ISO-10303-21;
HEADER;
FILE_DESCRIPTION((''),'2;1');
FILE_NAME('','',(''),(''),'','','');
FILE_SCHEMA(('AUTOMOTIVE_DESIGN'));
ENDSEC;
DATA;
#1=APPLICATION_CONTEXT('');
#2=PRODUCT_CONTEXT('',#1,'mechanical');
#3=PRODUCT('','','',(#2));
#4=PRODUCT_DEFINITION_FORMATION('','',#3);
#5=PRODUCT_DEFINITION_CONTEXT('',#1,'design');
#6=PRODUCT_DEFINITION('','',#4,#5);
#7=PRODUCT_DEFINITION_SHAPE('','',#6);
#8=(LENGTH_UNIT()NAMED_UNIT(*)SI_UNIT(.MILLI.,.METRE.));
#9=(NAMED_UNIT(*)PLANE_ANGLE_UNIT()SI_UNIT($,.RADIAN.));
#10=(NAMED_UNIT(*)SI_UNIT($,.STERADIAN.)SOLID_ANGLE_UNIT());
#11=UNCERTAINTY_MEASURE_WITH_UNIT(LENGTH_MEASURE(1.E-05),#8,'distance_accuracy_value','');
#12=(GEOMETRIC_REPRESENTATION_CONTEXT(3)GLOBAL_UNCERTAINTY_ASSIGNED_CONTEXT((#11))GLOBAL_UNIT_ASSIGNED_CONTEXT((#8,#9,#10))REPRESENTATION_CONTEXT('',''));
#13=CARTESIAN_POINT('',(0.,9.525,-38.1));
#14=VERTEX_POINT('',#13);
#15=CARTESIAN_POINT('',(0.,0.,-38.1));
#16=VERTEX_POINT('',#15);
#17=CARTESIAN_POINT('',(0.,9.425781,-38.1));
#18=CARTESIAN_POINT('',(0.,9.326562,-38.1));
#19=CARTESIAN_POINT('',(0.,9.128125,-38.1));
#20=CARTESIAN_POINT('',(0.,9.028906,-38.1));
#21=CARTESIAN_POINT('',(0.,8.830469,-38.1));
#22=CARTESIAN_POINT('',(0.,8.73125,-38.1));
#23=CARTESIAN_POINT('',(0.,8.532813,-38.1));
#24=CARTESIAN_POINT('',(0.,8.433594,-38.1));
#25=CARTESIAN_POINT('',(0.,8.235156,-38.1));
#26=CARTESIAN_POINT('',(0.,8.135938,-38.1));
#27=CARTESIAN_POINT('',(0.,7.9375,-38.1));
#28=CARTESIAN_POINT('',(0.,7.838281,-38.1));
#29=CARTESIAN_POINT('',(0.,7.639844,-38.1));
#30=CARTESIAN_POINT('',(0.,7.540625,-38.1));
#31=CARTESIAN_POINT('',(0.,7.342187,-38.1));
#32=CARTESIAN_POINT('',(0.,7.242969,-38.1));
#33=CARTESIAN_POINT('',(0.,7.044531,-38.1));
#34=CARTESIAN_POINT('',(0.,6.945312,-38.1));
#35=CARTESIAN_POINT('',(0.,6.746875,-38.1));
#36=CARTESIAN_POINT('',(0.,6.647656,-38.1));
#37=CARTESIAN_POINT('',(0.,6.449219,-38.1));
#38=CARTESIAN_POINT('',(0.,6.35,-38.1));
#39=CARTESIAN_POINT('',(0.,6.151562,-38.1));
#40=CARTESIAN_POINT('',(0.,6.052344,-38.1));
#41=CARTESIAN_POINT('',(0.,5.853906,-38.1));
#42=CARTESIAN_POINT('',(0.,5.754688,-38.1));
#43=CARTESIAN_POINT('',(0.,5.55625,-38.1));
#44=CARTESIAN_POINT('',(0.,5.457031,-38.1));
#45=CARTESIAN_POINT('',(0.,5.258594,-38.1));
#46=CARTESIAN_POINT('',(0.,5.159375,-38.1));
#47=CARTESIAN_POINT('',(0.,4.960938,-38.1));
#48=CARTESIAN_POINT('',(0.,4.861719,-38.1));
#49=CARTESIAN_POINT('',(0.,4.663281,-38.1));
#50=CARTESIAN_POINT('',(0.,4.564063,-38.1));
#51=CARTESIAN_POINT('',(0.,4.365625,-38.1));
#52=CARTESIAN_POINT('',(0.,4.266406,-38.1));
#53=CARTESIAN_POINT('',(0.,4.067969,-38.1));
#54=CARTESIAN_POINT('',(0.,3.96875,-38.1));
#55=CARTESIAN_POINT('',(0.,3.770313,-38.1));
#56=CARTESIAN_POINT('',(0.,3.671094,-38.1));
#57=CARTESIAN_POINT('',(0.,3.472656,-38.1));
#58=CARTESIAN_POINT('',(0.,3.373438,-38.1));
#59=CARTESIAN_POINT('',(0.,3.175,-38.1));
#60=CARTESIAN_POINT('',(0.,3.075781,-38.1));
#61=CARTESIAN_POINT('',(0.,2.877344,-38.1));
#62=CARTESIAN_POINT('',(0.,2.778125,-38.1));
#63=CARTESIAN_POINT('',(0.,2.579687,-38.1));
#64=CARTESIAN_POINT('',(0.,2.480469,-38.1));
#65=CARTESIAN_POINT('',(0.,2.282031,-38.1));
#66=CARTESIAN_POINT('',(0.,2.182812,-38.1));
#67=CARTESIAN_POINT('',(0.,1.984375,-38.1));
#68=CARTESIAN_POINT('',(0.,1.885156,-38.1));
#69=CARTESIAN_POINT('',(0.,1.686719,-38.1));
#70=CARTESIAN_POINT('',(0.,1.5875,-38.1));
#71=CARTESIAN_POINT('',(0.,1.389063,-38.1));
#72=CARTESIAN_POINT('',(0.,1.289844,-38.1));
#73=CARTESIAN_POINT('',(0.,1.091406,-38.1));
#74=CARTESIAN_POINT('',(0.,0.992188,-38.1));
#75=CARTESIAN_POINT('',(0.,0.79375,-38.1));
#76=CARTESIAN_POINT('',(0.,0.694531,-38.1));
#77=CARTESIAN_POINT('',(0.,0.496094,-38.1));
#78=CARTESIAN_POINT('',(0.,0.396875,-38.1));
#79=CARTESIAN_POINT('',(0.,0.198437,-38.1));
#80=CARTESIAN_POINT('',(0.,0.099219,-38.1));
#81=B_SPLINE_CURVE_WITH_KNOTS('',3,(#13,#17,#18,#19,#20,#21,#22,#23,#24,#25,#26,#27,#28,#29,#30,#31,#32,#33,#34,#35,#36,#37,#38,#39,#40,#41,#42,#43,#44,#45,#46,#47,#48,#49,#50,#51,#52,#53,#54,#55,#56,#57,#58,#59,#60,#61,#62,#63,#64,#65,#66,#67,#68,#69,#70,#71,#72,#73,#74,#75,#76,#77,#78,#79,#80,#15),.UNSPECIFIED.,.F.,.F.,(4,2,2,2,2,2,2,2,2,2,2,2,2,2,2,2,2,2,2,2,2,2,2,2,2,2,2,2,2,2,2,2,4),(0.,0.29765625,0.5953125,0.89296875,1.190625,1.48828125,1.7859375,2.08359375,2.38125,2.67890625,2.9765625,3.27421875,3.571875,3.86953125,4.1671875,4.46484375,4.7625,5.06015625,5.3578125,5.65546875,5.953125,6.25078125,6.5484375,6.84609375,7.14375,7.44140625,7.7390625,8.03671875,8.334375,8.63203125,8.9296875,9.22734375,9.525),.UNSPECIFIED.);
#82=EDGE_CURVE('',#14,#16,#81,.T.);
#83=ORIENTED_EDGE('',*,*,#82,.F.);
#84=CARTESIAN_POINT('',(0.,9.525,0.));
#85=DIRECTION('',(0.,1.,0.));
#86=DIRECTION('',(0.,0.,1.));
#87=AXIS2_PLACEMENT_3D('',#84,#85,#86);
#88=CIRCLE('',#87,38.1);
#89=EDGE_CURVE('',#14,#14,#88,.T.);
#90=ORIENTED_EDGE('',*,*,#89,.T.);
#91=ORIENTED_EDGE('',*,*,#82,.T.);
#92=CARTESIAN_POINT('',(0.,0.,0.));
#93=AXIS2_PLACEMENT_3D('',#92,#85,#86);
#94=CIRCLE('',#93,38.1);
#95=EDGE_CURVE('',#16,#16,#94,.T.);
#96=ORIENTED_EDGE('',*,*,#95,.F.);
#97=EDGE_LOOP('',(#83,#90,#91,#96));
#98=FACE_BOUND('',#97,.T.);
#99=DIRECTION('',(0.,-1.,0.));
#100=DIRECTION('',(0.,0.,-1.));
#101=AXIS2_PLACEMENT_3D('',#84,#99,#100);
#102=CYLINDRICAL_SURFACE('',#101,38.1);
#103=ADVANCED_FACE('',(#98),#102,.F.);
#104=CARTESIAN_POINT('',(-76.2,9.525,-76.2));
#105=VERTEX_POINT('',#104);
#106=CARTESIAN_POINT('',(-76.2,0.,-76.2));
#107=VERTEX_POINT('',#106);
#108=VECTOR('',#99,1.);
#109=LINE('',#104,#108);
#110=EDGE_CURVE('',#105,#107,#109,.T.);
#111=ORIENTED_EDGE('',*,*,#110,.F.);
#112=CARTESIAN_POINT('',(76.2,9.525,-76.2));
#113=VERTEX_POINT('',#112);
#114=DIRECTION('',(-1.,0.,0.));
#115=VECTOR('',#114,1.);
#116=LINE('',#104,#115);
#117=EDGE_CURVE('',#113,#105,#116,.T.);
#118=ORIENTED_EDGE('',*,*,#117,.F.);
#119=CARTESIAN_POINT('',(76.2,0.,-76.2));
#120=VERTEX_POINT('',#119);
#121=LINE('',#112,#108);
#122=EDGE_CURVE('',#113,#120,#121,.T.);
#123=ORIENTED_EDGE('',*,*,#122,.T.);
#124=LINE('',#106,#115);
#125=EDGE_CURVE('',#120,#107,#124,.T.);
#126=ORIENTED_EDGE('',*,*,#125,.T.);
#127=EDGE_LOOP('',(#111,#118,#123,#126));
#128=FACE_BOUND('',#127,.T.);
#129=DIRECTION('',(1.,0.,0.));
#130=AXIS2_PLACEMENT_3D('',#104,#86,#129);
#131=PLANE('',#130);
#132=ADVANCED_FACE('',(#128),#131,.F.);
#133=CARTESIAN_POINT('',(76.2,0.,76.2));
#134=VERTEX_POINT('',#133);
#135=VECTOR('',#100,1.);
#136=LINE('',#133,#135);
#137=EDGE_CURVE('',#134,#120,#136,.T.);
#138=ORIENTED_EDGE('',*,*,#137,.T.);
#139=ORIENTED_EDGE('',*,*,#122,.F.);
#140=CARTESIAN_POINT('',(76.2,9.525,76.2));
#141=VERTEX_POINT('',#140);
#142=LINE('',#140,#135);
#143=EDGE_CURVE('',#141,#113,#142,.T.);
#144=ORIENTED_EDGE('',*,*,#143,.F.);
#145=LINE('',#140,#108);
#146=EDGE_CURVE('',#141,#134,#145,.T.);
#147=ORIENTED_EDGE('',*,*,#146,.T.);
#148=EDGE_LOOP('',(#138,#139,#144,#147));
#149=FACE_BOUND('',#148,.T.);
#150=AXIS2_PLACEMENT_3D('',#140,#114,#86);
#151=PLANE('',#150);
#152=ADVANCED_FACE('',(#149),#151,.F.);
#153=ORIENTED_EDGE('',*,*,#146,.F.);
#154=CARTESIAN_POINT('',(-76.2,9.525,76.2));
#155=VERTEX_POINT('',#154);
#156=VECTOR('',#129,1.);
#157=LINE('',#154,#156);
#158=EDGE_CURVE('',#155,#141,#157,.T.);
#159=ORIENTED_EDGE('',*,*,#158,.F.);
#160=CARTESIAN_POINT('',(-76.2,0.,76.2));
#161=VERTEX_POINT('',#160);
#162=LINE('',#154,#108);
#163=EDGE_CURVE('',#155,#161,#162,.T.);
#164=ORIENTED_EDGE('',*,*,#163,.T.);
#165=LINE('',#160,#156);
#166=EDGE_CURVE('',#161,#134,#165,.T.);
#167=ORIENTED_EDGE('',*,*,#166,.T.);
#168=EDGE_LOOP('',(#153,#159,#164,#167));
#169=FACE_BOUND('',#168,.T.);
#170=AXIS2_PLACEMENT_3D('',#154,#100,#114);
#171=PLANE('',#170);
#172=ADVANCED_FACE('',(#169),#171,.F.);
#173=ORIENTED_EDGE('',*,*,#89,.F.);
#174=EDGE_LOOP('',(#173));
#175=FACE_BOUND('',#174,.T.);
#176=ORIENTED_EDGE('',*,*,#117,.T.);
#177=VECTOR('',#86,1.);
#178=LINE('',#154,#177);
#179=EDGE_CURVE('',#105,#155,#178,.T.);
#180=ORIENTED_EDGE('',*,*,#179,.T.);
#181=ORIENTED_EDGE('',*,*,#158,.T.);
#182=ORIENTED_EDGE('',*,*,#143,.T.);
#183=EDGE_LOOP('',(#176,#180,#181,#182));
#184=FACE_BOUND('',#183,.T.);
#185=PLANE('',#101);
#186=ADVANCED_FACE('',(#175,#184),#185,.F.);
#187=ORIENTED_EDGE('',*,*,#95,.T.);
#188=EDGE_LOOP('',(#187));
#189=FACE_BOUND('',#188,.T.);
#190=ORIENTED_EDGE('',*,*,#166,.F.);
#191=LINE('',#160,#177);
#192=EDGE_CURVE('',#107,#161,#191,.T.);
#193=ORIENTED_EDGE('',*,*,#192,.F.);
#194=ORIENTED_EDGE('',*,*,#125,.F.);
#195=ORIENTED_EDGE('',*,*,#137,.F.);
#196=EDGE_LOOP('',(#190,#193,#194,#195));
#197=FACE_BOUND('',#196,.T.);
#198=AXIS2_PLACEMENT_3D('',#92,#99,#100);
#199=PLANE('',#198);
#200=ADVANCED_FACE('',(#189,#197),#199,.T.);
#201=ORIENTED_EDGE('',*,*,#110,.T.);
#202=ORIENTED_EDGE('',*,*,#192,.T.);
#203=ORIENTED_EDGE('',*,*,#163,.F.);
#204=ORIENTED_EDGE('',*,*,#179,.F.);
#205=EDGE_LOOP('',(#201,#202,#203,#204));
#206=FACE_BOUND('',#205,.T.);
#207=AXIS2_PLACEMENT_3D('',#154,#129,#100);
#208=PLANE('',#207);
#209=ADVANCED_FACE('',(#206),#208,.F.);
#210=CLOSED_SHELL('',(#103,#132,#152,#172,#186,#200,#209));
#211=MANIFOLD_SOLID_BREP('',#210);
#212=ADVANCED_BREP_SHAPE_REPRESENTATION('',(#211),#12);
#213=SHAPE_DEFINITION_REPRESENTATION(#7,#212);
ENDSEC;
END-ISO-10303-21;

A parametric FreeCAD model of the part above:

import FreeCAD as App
import Part
import Sketcher
from FreeCAD import Vector
Q = App.Units.Quantity

doc = App.newDocument("Part")
body = doc.addObject("PartDesign::Body", "Body")

# Sketch on XZ plane
sketch1 = body.newObject("Sketcher::SketchObject", "Sketch")
sketch1.AttachmentSupport = (doc.getObject("XZ_Plane"), [""])
sketch1.MapMode = "FlatFace"
sketch1.addGeometry(Part.LineSegment(Vector(-76.2, -76.2, 0), Vector(-76.2, 76.2, 0)), False)
sketch1.addGeometry(Part.LineSegment(Vector(-76.2, 76.2, 0), Vector(76.2, 76.2, 0)), False)
sketch1.addGeometry(Part.LineSegment(Vector(76.2, 76.2, 0), Vector(76.2, -76.2, 0)), False)
sketch1.addGeometry(Part.LineSegment(Vector(76.2, -76.2, 0), Vector(-76.2, -76.2, 0)), False)
sketch1.addGeometry(Part.Circle(Vector(0, 0, 0), Vector(0, 0, 1), 38.1), False)
sketch1.addConstraint(Sketcher.Constraint("Coincident", 0, 2, 1, 1))
sketch1.addConstraint(Sketcher.Constraint("Coincident", 1, 2, 2, 1))
sketch1.addConstraint(Sketcher.Constraint("Coincident", 2, 2, 3, 1))
sketch1.addConstraint(Sketcher.Constraint("Coincident", 3, 2, 0, 1))
sketch1.addConstraint(Sketcher.Constraint("Vertical", 0))
sketch1.addConstraint(Sketcher.Constraint("Horizontal", 1))
sketch1.addConstraint(Sketcher.Constraint("Vertical", 2))
sketch1.addConstraint(Sketcher.Constraint("Horizontal", 3))
sketch1.addConstraint(Sketcher.Constraint("Coincident", 4, 3, -1, 1))
sketch1.addConstraint(Sketcher.Constraint("Symmetric", 0, 2, 2, 2, -1, 1))
sketch1.addConstraint(Sketcher.Constraint("Equal", 3, 0))
sketch1.addConstraint(Sketcher.Constraint("Diameter", 4, Q("3 in")))
sketch1.addConstraint(Sketcher.Constraint("DistanceX", 1, 1, 1, 2, Q("6 in")))
pad1 = body.newObject("PartDesign::Pad", "Pad")
pad1.Profile = sketch1
pad1.Length = Q("0.375 in")
pad1.Reversed = True

doc.recompute()
